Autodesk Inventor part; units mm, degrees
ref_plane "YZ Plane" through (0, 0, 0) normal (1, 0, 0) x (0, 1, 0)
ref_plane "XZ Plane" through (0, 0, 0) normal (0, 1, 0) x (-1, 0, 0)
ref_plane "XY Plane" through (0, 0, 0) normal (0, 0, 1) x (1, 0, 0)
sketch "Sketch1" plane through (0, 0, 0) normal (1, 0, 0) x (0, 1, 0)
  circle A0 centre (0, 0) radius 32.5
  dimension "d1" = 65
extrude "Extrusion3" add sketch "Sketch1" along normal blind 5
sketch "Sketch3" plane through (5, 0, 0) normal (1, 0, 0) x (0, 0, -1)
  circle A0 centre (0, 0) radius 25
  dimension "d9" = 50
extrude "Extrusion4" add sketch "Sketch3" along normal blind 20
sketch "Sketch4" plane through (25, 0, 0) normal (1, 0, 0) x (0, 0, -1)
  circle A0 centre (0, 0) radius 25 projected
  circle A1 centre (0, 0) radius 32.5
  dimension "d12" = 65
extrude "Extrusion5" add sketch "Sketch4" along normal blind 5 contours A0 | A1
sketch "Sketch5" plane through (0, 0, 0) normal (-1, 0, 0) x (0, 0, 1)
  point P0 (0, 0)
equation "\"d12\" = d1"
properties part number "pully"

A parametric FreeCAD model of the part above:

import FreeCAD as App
import Part
import Sketcher

V = App.Vector

doc = App.newDocument("Part")
body = doc.addObject("PartDesign::Body", "Body")

# Sketch on YZ plane
sketch1 = doc.addObject("Sketcher::SketchObject", "Sketch")
body.addObject(sketch1)
sketch1.AttachmentSupport = (doc.YZ_Plane, [""])
sketch1.MapMode = "FlatFace"
sketch1.addGeometry(Part.Circle(V(0, 0, 0), V(0, 0, 1), 32), False)
sketch1.addConstraint(Sketcher.Constraint("Coincident", 0, 3, -1, 1))
sketch1.addConstraint(Sketcher.Constraint("Diameter", 0, 65.0))
pad1 = doc.addObject("PartDesign::Pad", "Pad")
body.addObject(pad1)
pad1.Profile = sketch1
pad1.Length = 5

# Sketch on YZ plane
sketch2 = doc.addObject("Sketcher::SketchObject", "Sketch001")
body.addObject(sketch2)
sketch2.AttachmentSupport = (doc.YZ_Plane, [""])
sketch2.MapMode = "FlatFace"
sketch2.AttachmentOffset = App.Placement(V(0, 0, 5), App.Rotation())
sketch2.addGeometry(Part.Circle(V(0, 0, 0), V(0, 0, 1), 25), False)
sketch2.addConstraint(Sketcher.Constraint("Coincident", 0, 3, -1, 1))
sketch2.addConstraint(Sketcher.Constraint("Diameter", 0, 50.0))
pad2 = doc.addObject("PartDesign::Pad", "Pad001")
body.addObject(pad2)
pad2.Profile = sketch2
pad2.Length = 20

# Sketch on YZ plane
sketch3 = doc.addObject("Sketcher::SketchObject", "Sketch002")
body.addObject(sketch3)
sketch3.AttachmentSupport = (doc.YZ_Plane, [""])
sketch3.MapMode = "FlatFace"
sketch3.AttachmentOffset = App.Placement(V(0, 0, 25), App.Rotation())
sketch3.addGeometry(Part.Circle(V(0, 0, 0), V(0, 0, 1), 32), False)
sketch3.addConstraint(Sketcher.Constraint("Coincident", 0, 3, -1, 1))
sketch3.addConstraint(Sketcher.Constraint("Diameter", 0, 65.0))
pad3 = doc.addObject("PartDesign::Pad", "Pad002")
body.addObject(pad3)
pad3.Profile = sketch3
pad3.Length = 5

doc.recompute()
